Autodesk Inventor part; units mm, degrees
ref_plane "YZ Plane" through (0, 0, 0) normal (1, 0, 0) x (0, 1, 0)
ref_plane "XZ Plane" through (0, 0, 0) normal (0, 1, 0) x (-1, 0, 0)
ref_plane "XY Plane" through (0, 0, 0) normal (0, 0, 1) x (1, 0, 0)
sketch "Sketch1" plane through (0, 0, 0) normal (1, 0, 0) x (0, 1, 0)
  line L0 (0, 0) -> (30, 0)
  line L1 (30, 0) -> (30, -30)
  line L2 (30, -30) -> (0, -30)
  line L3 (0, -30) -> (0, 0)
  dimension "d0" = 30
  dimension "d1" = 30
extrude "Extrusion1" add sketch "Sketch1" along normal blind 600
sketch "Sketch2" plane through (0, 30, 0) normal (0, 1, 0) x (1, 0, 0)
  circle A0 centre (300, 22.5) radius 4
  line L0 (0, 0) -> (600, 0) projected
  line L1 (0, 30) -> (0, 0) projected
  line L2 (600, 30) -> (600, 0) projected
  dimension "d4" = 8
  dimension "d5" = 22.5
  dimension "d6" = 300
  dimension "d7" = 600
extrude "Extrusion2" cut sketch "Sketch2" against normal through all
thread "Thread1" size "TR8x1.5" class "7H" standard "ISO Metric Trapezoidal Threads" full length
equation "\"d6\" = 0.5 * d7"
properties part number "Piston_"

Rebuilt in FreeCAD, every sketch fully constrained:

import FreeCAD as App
import Part
import Sketcher

V = App.Vector


def add_polygon(sketch, points):
    """Adds a closed chain of lines whose ends are joined by coincident constraints."""
    first, n = sketch.GeometryCount, len(points)
    for a, b in zip(points, points[1:] + points[:1]):
        sketch.addGeometry(Part.LineSegment(App.Vector(*a, 0), App.Vector(*b, 0)), False)
    for i in range(n):
        sketch.addConstraint(Sketcher.Constraint("Coincident", first + i, 2, first + (i + 1) % n, 1))

doc = App.newDocument("Part")
body = doc.addObject("PartDesign::Body", "Body")

# Sketch on YZ plane
sketch1 = body.newObject("Sketcher::SketchObject", "Sketch")
sketch1.AttachmentSupport = (doc.getObject("YZ_Plane"), [""])
sketch1.MapMode = "FlatFace"
add_polygon(sketch1, [(30, 0), (0, 0), (0, -30), (30, -30)])  # lines 0-3
sketch1.addConstraint(Sketcher.Constraint("Horizontal", 0))
sketch1.addConstraint(Sketcher.Constraint("Vertical", 1))
sketch1.addConstraint(Sketcher.Constraint("Horizontal", 2))
sketch1.addConstraint(Sketcher.Constraint("Vertical", 3))
sketch1.addConstraint(Sketcher.Constraint("Coincident", 0, 2, -1, 1))
sketch1.addConstraint(Sketcher.Constraint("Equal", 2, 1))
sketch1.addConstraint(Sketcher.Constraint("DistanceX", 0, 2, 0, 1, 30.0))
pad1 = body.newObject("PartDesign::Pad", "Pad")
pad1.Profile = sketch1
pad1.Length = 600

# Sketch on XZ plane
sketch2 = body.newObject("Sketcher::SketchObject", "Sketch001")
sketch2.AttachmentSupport = (doc.getObject("XZ_Plane"), [""])
sketch2.MapMode = "FlatFace"
sketch2.AttachmentOffset = App.Placement(V(0, 0, -30), App.Rotation())
sketch2.addGeometry(Part.Circle(V(300, -22.5, 0), V(0, 0, 1), 4), False)
sketch2.addConstraint(Sketcher.Constraint("Diameter", 0, 8.0))
sketch2.addConstraint(Sketcher.Constraint("DistanceX", -1, 1, 0, 3, 300.0))
sketch2.addConstraint(Sketcher.Constraint("DistanceY", 0, 3, -1, 1, 22.5))
pocket1 = body.newObject("PartDesign::Pocket", "Pocket")
pocket1.Profile = sketch2
pocket1.Type = "ThroughAll"
pocket1.Reversed = True

doc.recompute()
